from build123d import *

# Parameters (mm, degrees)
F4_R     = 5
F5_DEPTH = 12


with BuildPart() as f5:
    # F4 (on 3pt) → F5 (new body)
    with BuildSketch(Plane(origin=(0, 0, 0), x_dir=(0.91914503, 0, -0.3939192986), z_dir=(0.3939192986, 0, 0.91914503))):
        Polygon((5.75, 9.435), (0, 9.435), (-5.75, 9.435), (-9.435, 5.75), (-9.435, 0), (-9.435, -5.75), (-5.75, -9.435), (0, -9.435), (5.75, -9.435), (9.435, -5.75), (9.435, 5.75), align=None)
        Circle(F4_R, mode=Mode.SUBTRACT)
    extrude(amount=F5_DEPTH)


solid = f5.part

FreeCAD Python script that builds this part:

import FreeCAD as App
import Part
import Sketcher
from FreeCAD import Vector
Q = App.Units.Quantity

doc = App.newDocument("Part")
body = doc.addObject("PartDesign::Body", "Body")

# Sketch on an angled plane
sketch1 = body.newObject("Sketcher::SketchObject", "Sketch")
sketch1.Placement = App.Placement(Vector(0, 0, 0), App.Rotation(Vector(0.91914503, 0, -0.393919299), Vector(0, 1, 0), Vector(0.393919299, 0, 0.91914503), "ZXY"))
sketch1.addGeometry([
    Part.LineSegment(Vector(5.75, 9.435, 0), Vector(-5.75, 9.435, 0)),  # 0
    Part.LineSegment(Vector(-5.75, 9.435, 0), Vector(-9.435, 5.75, 0)),  # 1
    Part.LineSegment(Vector(-9.435, 5.75, 0), Vector(-9.435, -5.75, 0)),  # 2
    Part.LineSegment(Vector(-9.435, -5.75, 0), Vector(-5.75, -9.435, 0)),  # 3
    Part.LineSegment(Vector(-5.75, -9.435, 0), Vector(5.75, -9.435, 0)),  # 4
    Part.LineSegment(Vector(5.75, -9.435, 0), Vector(9.435, -5.75, 0)),  # 5
    Part.LineSegment(Vector(9.435, -5.75, 0), Vector(9.435, 5.75, 0)),  # 6
    Part.LineSegment(Vector(9.435, 5.75, 0), Vector(5.75, 9.435, 0)),  # 7
    Part.Circle(Vector(0, 0, 0), Vector(0, 0, 1), 5),  # 8
], False)
sketch1.addConstraint([
    Sketcher.Constraint("Coincident", 0, 2, 1, 1),
    Sketcher.Constraint("Coincident", 1, 2, 2, 1),
    Sketcher.Constraint("Coincident", 2, 2, 3, 1),
    Sketcher.Constraint("Coincident", 3, 2, 4, 1),
    Sketcher.Constraint("Coincident", 4, 2, 5, 1),
    Sketcher.Constraint("Coincident", 5, 2, 6, 1),
    Sketcher.Constraint("Coincident", 6, 2, 7, 1),
    Sketcher.Constraint("Coincident", 7, 2, 0, 1),
    Sketcher.Constraint("Horizontal", 0),
    Sketcher.Constraint("Vertical", 2),
    Sketcher.Constraint("Horizontal", 4),
    Sketcher.Constraint("Vertical", 6),
    Sketcher.Constraint("Coincident", 8, 3, -1, 1),
    Sketcher.Constraint("Symmetric", 0, 2, 4, 2, -1, 1),
    Sketcher.Constraint("Symmetric", 1, 2, 5, 2, -1, 1),
    Sketcher.Constraint("Perpendicular", 1, 3),
    Sketcher.Constraint("Perpendicular", 5, 7),
    Sketcher.Constraint("Horizontal", 2, 2, 5, 2),
    Sketcher.Constraint("Horizontal", 1, 2, 6, 2),
    Sketcher.Constraint("Vertical", 0, 2, 3, 2),
    Sketcher.Constraint("Equal", 4, 2),
    Sketcher.Constraint("Diameter", 8, Q("10 mm")),
    Sketcher.Constraint("DistanceX", 0, 2, 0, 1, Q("11.5 mm")),
    Sketcher.Constraint("DistanceY", 3, 2, 0, 2, Q("18.87 mm")),
])
pad1 = body.newObject("PartDesign::Pad", "Pad")
pad1.Profile = sketch1
pad1.Length = 12

doc.recompute()
